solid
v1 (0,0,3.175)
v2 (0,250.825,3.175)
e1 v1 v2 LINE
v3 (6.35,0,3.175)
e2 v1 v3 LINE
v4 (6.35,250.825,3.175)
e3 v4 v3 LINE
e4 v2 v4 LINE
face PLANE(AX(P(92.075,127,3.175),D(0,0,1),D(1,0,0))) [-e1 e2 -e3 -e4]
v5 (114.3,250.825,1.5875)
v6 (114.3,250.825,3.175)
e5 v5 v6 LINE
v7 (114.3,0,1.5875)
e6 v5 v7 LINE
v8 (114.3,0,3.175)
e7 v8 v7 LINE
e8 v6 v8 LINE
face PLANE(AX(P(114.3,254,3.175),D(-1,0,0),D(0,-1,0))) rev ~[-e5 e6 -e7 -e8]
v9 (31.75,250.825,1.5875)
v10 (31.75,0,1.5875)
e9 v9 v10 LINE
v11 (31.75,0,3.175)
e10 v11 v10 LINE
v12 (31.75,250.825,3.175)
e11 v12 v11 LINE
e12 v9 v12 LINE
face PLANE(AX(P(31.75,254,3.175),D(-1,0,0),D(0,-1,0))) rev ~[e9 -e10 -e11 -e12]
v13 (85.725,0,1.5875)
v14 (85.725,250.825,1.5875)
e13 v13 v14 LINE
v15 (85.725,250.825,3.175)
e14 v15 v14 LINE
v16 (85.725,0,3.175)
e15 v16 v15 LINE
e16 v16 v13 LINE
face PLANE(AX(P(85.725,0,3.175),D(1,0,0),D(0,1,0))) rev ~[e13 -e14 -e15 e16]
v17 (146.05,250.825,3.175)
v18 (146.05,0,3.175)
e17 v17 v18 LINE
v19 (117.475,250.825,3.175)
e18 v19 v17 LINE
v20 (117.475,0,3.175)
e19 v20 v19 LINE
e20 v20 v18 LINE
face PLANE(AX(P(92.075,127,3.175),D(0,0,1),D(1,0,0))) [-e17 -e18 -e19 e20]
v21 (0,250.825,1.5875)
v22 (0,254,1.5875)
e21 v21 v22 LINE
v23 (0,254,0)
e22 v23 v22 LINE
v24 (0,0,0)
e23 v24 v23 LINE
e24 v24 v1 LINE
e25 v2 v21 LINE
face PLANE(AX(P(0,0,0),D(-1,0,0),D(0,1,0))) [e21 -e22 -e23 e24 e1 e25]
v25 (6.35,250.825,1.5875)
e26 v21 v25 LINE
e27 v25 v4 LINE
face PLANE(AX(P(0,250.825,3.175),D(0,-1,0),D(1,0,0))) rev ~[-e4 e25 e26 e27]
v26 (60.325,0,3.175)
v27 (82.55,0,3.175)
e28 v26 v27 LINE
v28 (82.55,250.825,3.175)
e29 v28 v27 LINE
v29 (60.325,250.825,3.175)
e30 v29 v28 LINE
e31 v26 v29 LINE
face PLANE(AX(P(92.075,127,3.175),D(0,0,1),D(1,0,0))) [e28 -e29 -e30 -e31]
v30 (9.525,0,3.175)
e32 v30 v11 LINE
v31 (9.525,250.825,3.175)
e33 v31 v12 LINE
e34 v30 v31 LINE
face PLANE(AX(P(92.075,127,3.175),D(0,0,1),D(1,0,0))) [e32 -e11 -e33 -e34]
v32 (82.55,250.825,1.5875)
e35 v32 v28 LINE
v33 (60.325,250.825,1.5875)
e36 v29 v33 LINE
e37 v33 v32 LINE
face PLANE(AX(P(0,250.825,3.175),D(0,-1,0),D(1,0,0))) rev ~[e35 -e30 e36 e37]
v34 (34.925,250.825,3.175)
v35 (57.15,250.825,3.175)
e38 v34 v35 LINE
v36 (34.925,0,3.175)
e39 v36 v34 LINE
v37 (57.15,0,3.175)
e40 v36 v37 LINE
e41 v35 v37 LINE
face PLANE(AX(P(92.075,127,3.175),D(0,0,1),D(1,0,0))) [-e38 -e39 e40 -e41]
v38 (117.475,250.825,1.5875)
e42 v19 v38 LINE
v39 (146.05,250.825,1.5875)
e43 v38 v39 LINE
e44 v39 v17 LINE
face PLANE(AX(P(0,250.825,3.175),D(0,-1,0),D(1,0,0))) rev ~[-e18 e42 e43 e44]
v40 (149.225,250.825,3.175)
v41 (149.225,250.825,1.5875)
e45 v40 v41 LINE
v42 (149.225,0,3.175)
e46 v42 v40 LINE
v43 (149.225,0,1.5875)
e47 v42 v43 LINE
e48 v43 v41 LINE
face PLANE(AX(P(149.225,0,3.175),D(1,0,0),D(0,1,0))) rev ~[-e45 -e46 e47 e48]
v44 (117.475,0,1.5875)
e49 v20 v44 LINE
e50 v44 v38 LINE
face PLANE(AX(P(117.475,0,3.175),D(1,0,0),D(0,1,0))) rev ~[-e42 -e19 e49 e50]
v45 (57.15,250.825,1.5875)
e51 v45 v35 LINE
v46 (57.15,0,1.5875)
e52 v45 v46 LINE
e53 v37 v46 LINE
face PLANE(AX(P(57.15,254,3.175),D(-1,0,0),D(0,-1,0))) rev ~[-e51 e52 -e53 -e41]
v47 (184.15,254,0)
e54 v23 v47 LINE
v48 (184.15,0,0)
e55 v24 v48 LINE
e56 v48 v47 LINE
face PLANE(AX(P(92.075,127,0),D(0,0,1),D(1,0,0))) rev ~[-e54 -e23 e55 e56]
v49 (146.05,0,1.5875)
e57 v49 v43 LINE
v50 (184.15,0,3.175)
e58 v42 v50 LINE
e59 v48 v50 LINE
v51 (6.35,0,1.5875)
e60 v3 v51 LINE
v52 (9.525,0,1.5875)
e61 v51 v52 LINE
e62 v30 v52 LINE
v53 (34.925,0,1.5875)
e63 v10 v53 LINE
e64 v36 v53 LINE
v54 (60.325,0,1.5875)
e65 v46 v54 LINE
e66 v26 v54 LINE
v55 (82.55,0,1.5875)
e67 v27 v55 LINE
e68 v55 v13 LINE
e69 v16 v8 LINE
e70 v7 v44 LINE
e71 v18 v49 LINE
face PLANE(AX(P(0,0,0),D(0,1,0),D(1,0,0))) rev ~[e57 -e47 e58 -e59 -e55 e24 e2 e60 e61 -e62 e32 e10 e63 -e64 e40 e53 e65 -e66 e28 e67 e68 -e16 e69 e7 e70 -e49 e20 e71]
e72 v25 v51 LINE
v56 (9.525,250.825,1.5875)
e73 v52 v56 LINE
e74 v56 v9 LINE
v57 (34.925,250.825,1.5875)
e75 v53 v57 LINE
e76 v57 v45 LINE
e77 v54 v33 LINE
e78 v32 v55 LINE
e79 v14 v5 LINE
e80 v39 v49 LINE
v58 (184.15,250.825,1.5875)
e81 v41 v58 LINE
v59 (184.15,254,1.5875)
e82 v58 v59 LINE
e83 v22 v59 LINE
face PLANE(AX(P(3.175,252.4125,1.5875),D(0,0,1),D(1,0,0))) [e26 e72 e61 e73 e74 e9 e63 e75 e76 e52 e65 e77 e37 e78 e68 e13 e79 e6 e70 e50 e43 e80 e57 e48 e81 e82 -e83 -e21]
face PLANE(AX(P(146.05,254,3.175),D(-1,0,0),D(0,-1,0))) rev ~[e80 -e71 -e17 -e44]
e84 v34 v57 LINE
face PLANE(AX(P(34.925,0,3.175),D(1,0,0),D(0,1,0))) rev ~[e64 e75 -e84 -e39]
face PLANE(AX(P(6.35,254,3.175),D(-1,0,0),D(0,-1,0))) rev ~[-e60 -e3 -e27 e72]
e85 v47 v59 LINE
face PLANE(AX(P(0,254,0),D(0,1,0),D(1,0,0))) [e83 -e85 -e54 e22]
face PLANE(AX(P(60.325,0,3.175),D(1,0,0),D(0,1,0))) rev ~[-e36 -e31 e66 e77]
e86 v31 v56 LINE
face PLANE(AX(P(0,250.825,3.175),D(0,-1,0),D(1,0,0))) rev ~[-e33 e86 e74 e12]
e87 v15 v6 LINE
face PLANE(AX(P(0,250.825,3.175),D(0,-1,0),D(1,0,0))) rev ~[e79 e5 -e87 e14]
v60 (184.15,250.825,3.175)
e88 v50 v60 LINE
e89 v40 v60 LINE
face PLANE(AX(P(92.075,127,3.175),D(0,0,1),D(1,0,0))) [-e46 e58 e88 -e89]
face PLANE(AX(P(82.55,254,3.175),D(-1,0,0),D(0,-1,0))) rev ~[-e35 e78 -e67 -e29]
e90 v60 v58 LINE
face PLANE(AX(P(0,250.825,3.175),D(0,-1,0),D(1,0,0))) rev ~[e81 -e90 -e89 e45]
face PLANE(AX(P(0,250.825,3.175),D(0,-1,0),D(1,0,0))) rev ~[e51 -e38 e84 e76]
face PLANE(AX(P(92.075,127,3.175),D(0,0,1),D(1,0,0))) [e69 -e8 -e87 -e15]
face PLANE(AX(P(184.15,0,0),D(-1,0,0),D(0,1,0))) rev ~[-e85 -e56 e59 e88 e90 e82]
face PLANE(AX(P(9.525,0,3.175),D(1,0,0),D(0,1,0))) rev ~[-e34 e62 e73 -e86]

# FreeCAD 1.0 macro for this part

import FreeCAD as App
import Part
import Sketcher
Q = App.Units.Quantity


def add_polygon(sketch, points):
    """Adds a closed chain of lines whose ends are joined by coincident constraints."""
    first, n = sketch.GeometryCount, len(points)
    for a, b in zip(points, points[1:] + points[:1]):
        sketch.addGeometry(Part.LineSegment(App.Vector(*a, 0), App.Vector(*b, 0)), False)
    for i in range(n):
        sketch.addConstraint(Sketcher.Constraint("Coincident", first + i, 2, first + (i + 1) % n, 1))

doc = App.newDocument("Part")
params = doc.addObject("Spreadsheet::Sheet", "Params")
for row, (alias, value) in enumerate([
    ("sketch1_height", "10 in"),
    ("sketch1_width", "7.25 in"),
    ("pad1_length", "0.125 in"),
    ("sketch2_height", "10 in"),
    ("sketch2_width", "0.125 in"),
    ("pocket1_length", "0.0625 in"),
    ("sketch3_width", "7.25 in"),
    ("sketch3_height", "0.125 in"),
    ("pocket2_length", "0.0625 in"),
], start=1):
    params.set(f"A{row}", alias)
    params.set(f"B{row}", "=" + value)
    params.setAlias(f"B{row}", alias)

body = doc.addObject("PartDesign::Body", "Body")

# Sketch on XY plane
sketch1 = body.newObject("Sketcher::SketchObject", "Sketch")
sketch1.AttachmentSupport = (doc.getObject("XY_Plane"), [""])
sketch1.MapMode = "FlatFace"
add_polygon(sketch1, [(0, 254), (0, 0), (184, 0), (184, 254)])  # lines 0-3
sketch1.addConstraint([
    Sketcher.Constraint("Vertical", 0),
    Sketcher.Constraint("Horizontal", 1),
    Sketcher.Constraint("Vertical", 2),
    Sketcher.Constraint("Horizontal", 3),
    Sketcher.Constraint("Coincident", 0, 2, -1, 1),
    Sketcher.Constraint("DistanceY", 0, 2, 0, 1, Q("10 in")),
    Sketcher.Constraint("DistanceX", 1, 1, 1, 2, Q("7.25 in")),
])
sketch1.setExpression("Constraints[9]", "Params.sketch1_height")
sketch1.setExpression("Constraints[10]", "Params.sketch1_width")
pad1 = body.newObject("PartDesign::Pad", "Pad")
pad1.Profile = sketch1
pad1.setExpression("Length", "Params.pad1_length")

# Sketch on XY plane
sketch2 = body.newObject("Sketcher::SketchObject", "Sketch001")
sketch2.AttachmentSupport = (doc.getObject("XY_Plane"), [""])
sketch2.MapMode = "FlatFace"
sketch2.AttachmentOffset = App.Placement(App.Vector(0, 0, 0.125 * 25.4), App.Rotation())
add_polygon(sketch2, [(6.3, 0), (9.5, 0), (9.5, 254), (6.3, 254)])  # lines 0-3
add_polygon(sketch2, [(31.8, 0), (34.9, 0), (34.9, 254), (31.8, 254)])  # lines 4-7
add_polygon(sketch2, [(57.1, 0), (60.3, 0), (60.3, 254), (57.1, 254)])  # lines 8-11
add_polygon(sketch2, [(82.5, 0), (85.7, 0), (85.7, 254), (82.5, 254)])  # lines 12-15
add_polygon(sketch2, [(114.3, 254), (114.3, 0), (117.5, 0), (117.5, 254)])  # lines 16-19
add_polygon(sketch2, [(146.1, 254), (146.1, 0), (149.2, 0), (149.2, 254)])  # lines 20-23
sketch2.addConstraint([
    Sketcher.Constraint("Horizontal", 0),
    Sketcher.Constraint("Vertical", 1),
    Sketcher.Constraint("Horizontal", 2),
    Sketcher.Constraint("Vertical", 3),
    Sketcher.Constraint("Horizontal", 4),
    Sketcher.Constraint("Vertical", 5),
    Sketcher.Constraint("Horizontal", 6),
    Sketcher.Constraint("Vertical", 7),
    Sketcher.Constraint("Horizontal", 8),
    Sketcher.Constraint("Vertical", 9),
    Sketcher.Constraint("Horizontal", 10),
    Sketcher.Constraint("Vertical", 11),
    Sketcher.Constraint("Horizontal", 12),
    Sketcher.Constraint("Vertical", 13),
    Sketcher.Constraint("Horizontal", 14),
    Sketcher.Constraint("Vertical", 15),
    Sketcher.Constraint("Vertical", 16),
    Sketcher.Constraint("Horizontal", 17),
    Sketcher.Constraint("Vertical", 18),
    Sketcher.Constraint("Horizontal", 19),
    Sketcher.Constraint("Vertical", 20),
    Sketcher.Constraint("Horizontal", 21),
    Sketcher.Constraint("Vertical", 22),
    Sketcher.Constraint("Horizontal", 23),
    Sketcher.Constraint("PointOnObject", 0, 2, -1),
    Sketcher.Constraint("PointOnObject", 4, 2, -1),
    Sketcher.Constraint("PointOnObject", 8, 2, -1),
    Sketcher.Constraint("PointOnObject", 12, 2, -1),
    Sketcher.Constraint("PointOnObject", 16, 2, -1),
    Sketcher.Constraint("PointOnObject", 20, 2, -1),
    Sketcher.Constraint("Horizontal", 2, 2, 5, 2),
    Sketcher.Constraint("Horizontal", 6, 2, 9, 2),
    Sketcher.Constraint("Horizontal", 10, 2, 13, 2),
    Sketcher.Constraint("Horizontal", 14, 2, 18, 2),
    Sketcher.Constraint("Horizontal", 19, 2, 22, 2),
    Sketcher.Constraint("Equal", 2, 4),
    Sketcher.Constraint("Equal", 6, 8),
    Sketcher.Constraint("Equal", 10, 12),
    Sketcher.Constraint("Equal", 14, 17),
    Sketcher.Constraint("Equal", 19, 21),
    Sketcher.Constraint("DistanceY", 1, 1, 1, 2, Q("10 in")),
    Sketcher.Constraint("DistanceX", 0, 2, 4, 2, Q("1 in")),
    Sketcher.Constraint("DistanceX", 4, 2, 8, 2, Q("1 in")),
    Sketcher.Constraint("DistanceX", 8, 2, 12, 2, Q("1 in")),
    Sketcher.Constraint("DistanceX", -1, 1, 16, 2, Q("4.5 in")),
    Sketcher.Constraint("DistanceX", 15, 2, 20, 2, Q("2.5 in")),
    Sketcher.Constraint("DistanceX", 0, 1, 0, 2, Q("0.125 in")),
    Sketcher.Constraint("DistanceX", -1, 1, 2, 2, Q("0.25 in")),
])
sketch2.setExpression("Constraints[64]", "Params.sketch2_height")
sketch2.setExpression("Constraints[70]", "Params.sketch2_width")
pocket1 = body.newObject("PartDesign::Pocket", "Pocket")
pocket1.Profile = sketch2
pocket1.setExpression("Length", "Params.pocket1_length")

# Sketch on XY plane
sketch3 = body.newObject("Sketcher::SketchObject", "Sketch002")
sketch3.AttachmentSupport = (doc.getObject("XY_Plane"), [""])
sketch3.MapMode = "FlatFace"
sketch3.AttachmentOffset = App.Placement(App.Vector(0, 0, 0.125 * 25.4), App.Rotation())
add_polygon(sketch3, [(0, 254), (0, 250.8), (184.2, 250.8), (184.2, 254)])  # lines 0-3
sketch3.addConstraint([
    Sketcher.Constraint("Vertical", 0),
    Sketcher.Constraint("Horizontal", 1),
    Sketcher.Constraint("Vertical", 2),
    Sketcher.Constraint("Horizontal", 3),
    Sketcher.Constraint("PointOnObject", 0, 2, -2),
    Sketcher.Constraint("DistanceY", -1, 1, 2, 2, Q("10 in")),
    Sketcher.Constraint("DistanceX", 1, 1, 1, 2, Q("7.25 in")),
    Sketcher.Constraint("DistanceY", 0, 2, 0, 1, Q("0.125 in")),
])
sketch3.setExpression("Constraints[10]", "Params.sketch3_width")
sketch3.setExpression("Constraints[11]", "Params.sketch3_height")
pocket2 = body.newObject("PartDesign::Pocket", "Pocket001")
pocket2.Profile = sketch3
pocket2.setExpression("Length", "Params.pocket2_length")

doc.recompute()
